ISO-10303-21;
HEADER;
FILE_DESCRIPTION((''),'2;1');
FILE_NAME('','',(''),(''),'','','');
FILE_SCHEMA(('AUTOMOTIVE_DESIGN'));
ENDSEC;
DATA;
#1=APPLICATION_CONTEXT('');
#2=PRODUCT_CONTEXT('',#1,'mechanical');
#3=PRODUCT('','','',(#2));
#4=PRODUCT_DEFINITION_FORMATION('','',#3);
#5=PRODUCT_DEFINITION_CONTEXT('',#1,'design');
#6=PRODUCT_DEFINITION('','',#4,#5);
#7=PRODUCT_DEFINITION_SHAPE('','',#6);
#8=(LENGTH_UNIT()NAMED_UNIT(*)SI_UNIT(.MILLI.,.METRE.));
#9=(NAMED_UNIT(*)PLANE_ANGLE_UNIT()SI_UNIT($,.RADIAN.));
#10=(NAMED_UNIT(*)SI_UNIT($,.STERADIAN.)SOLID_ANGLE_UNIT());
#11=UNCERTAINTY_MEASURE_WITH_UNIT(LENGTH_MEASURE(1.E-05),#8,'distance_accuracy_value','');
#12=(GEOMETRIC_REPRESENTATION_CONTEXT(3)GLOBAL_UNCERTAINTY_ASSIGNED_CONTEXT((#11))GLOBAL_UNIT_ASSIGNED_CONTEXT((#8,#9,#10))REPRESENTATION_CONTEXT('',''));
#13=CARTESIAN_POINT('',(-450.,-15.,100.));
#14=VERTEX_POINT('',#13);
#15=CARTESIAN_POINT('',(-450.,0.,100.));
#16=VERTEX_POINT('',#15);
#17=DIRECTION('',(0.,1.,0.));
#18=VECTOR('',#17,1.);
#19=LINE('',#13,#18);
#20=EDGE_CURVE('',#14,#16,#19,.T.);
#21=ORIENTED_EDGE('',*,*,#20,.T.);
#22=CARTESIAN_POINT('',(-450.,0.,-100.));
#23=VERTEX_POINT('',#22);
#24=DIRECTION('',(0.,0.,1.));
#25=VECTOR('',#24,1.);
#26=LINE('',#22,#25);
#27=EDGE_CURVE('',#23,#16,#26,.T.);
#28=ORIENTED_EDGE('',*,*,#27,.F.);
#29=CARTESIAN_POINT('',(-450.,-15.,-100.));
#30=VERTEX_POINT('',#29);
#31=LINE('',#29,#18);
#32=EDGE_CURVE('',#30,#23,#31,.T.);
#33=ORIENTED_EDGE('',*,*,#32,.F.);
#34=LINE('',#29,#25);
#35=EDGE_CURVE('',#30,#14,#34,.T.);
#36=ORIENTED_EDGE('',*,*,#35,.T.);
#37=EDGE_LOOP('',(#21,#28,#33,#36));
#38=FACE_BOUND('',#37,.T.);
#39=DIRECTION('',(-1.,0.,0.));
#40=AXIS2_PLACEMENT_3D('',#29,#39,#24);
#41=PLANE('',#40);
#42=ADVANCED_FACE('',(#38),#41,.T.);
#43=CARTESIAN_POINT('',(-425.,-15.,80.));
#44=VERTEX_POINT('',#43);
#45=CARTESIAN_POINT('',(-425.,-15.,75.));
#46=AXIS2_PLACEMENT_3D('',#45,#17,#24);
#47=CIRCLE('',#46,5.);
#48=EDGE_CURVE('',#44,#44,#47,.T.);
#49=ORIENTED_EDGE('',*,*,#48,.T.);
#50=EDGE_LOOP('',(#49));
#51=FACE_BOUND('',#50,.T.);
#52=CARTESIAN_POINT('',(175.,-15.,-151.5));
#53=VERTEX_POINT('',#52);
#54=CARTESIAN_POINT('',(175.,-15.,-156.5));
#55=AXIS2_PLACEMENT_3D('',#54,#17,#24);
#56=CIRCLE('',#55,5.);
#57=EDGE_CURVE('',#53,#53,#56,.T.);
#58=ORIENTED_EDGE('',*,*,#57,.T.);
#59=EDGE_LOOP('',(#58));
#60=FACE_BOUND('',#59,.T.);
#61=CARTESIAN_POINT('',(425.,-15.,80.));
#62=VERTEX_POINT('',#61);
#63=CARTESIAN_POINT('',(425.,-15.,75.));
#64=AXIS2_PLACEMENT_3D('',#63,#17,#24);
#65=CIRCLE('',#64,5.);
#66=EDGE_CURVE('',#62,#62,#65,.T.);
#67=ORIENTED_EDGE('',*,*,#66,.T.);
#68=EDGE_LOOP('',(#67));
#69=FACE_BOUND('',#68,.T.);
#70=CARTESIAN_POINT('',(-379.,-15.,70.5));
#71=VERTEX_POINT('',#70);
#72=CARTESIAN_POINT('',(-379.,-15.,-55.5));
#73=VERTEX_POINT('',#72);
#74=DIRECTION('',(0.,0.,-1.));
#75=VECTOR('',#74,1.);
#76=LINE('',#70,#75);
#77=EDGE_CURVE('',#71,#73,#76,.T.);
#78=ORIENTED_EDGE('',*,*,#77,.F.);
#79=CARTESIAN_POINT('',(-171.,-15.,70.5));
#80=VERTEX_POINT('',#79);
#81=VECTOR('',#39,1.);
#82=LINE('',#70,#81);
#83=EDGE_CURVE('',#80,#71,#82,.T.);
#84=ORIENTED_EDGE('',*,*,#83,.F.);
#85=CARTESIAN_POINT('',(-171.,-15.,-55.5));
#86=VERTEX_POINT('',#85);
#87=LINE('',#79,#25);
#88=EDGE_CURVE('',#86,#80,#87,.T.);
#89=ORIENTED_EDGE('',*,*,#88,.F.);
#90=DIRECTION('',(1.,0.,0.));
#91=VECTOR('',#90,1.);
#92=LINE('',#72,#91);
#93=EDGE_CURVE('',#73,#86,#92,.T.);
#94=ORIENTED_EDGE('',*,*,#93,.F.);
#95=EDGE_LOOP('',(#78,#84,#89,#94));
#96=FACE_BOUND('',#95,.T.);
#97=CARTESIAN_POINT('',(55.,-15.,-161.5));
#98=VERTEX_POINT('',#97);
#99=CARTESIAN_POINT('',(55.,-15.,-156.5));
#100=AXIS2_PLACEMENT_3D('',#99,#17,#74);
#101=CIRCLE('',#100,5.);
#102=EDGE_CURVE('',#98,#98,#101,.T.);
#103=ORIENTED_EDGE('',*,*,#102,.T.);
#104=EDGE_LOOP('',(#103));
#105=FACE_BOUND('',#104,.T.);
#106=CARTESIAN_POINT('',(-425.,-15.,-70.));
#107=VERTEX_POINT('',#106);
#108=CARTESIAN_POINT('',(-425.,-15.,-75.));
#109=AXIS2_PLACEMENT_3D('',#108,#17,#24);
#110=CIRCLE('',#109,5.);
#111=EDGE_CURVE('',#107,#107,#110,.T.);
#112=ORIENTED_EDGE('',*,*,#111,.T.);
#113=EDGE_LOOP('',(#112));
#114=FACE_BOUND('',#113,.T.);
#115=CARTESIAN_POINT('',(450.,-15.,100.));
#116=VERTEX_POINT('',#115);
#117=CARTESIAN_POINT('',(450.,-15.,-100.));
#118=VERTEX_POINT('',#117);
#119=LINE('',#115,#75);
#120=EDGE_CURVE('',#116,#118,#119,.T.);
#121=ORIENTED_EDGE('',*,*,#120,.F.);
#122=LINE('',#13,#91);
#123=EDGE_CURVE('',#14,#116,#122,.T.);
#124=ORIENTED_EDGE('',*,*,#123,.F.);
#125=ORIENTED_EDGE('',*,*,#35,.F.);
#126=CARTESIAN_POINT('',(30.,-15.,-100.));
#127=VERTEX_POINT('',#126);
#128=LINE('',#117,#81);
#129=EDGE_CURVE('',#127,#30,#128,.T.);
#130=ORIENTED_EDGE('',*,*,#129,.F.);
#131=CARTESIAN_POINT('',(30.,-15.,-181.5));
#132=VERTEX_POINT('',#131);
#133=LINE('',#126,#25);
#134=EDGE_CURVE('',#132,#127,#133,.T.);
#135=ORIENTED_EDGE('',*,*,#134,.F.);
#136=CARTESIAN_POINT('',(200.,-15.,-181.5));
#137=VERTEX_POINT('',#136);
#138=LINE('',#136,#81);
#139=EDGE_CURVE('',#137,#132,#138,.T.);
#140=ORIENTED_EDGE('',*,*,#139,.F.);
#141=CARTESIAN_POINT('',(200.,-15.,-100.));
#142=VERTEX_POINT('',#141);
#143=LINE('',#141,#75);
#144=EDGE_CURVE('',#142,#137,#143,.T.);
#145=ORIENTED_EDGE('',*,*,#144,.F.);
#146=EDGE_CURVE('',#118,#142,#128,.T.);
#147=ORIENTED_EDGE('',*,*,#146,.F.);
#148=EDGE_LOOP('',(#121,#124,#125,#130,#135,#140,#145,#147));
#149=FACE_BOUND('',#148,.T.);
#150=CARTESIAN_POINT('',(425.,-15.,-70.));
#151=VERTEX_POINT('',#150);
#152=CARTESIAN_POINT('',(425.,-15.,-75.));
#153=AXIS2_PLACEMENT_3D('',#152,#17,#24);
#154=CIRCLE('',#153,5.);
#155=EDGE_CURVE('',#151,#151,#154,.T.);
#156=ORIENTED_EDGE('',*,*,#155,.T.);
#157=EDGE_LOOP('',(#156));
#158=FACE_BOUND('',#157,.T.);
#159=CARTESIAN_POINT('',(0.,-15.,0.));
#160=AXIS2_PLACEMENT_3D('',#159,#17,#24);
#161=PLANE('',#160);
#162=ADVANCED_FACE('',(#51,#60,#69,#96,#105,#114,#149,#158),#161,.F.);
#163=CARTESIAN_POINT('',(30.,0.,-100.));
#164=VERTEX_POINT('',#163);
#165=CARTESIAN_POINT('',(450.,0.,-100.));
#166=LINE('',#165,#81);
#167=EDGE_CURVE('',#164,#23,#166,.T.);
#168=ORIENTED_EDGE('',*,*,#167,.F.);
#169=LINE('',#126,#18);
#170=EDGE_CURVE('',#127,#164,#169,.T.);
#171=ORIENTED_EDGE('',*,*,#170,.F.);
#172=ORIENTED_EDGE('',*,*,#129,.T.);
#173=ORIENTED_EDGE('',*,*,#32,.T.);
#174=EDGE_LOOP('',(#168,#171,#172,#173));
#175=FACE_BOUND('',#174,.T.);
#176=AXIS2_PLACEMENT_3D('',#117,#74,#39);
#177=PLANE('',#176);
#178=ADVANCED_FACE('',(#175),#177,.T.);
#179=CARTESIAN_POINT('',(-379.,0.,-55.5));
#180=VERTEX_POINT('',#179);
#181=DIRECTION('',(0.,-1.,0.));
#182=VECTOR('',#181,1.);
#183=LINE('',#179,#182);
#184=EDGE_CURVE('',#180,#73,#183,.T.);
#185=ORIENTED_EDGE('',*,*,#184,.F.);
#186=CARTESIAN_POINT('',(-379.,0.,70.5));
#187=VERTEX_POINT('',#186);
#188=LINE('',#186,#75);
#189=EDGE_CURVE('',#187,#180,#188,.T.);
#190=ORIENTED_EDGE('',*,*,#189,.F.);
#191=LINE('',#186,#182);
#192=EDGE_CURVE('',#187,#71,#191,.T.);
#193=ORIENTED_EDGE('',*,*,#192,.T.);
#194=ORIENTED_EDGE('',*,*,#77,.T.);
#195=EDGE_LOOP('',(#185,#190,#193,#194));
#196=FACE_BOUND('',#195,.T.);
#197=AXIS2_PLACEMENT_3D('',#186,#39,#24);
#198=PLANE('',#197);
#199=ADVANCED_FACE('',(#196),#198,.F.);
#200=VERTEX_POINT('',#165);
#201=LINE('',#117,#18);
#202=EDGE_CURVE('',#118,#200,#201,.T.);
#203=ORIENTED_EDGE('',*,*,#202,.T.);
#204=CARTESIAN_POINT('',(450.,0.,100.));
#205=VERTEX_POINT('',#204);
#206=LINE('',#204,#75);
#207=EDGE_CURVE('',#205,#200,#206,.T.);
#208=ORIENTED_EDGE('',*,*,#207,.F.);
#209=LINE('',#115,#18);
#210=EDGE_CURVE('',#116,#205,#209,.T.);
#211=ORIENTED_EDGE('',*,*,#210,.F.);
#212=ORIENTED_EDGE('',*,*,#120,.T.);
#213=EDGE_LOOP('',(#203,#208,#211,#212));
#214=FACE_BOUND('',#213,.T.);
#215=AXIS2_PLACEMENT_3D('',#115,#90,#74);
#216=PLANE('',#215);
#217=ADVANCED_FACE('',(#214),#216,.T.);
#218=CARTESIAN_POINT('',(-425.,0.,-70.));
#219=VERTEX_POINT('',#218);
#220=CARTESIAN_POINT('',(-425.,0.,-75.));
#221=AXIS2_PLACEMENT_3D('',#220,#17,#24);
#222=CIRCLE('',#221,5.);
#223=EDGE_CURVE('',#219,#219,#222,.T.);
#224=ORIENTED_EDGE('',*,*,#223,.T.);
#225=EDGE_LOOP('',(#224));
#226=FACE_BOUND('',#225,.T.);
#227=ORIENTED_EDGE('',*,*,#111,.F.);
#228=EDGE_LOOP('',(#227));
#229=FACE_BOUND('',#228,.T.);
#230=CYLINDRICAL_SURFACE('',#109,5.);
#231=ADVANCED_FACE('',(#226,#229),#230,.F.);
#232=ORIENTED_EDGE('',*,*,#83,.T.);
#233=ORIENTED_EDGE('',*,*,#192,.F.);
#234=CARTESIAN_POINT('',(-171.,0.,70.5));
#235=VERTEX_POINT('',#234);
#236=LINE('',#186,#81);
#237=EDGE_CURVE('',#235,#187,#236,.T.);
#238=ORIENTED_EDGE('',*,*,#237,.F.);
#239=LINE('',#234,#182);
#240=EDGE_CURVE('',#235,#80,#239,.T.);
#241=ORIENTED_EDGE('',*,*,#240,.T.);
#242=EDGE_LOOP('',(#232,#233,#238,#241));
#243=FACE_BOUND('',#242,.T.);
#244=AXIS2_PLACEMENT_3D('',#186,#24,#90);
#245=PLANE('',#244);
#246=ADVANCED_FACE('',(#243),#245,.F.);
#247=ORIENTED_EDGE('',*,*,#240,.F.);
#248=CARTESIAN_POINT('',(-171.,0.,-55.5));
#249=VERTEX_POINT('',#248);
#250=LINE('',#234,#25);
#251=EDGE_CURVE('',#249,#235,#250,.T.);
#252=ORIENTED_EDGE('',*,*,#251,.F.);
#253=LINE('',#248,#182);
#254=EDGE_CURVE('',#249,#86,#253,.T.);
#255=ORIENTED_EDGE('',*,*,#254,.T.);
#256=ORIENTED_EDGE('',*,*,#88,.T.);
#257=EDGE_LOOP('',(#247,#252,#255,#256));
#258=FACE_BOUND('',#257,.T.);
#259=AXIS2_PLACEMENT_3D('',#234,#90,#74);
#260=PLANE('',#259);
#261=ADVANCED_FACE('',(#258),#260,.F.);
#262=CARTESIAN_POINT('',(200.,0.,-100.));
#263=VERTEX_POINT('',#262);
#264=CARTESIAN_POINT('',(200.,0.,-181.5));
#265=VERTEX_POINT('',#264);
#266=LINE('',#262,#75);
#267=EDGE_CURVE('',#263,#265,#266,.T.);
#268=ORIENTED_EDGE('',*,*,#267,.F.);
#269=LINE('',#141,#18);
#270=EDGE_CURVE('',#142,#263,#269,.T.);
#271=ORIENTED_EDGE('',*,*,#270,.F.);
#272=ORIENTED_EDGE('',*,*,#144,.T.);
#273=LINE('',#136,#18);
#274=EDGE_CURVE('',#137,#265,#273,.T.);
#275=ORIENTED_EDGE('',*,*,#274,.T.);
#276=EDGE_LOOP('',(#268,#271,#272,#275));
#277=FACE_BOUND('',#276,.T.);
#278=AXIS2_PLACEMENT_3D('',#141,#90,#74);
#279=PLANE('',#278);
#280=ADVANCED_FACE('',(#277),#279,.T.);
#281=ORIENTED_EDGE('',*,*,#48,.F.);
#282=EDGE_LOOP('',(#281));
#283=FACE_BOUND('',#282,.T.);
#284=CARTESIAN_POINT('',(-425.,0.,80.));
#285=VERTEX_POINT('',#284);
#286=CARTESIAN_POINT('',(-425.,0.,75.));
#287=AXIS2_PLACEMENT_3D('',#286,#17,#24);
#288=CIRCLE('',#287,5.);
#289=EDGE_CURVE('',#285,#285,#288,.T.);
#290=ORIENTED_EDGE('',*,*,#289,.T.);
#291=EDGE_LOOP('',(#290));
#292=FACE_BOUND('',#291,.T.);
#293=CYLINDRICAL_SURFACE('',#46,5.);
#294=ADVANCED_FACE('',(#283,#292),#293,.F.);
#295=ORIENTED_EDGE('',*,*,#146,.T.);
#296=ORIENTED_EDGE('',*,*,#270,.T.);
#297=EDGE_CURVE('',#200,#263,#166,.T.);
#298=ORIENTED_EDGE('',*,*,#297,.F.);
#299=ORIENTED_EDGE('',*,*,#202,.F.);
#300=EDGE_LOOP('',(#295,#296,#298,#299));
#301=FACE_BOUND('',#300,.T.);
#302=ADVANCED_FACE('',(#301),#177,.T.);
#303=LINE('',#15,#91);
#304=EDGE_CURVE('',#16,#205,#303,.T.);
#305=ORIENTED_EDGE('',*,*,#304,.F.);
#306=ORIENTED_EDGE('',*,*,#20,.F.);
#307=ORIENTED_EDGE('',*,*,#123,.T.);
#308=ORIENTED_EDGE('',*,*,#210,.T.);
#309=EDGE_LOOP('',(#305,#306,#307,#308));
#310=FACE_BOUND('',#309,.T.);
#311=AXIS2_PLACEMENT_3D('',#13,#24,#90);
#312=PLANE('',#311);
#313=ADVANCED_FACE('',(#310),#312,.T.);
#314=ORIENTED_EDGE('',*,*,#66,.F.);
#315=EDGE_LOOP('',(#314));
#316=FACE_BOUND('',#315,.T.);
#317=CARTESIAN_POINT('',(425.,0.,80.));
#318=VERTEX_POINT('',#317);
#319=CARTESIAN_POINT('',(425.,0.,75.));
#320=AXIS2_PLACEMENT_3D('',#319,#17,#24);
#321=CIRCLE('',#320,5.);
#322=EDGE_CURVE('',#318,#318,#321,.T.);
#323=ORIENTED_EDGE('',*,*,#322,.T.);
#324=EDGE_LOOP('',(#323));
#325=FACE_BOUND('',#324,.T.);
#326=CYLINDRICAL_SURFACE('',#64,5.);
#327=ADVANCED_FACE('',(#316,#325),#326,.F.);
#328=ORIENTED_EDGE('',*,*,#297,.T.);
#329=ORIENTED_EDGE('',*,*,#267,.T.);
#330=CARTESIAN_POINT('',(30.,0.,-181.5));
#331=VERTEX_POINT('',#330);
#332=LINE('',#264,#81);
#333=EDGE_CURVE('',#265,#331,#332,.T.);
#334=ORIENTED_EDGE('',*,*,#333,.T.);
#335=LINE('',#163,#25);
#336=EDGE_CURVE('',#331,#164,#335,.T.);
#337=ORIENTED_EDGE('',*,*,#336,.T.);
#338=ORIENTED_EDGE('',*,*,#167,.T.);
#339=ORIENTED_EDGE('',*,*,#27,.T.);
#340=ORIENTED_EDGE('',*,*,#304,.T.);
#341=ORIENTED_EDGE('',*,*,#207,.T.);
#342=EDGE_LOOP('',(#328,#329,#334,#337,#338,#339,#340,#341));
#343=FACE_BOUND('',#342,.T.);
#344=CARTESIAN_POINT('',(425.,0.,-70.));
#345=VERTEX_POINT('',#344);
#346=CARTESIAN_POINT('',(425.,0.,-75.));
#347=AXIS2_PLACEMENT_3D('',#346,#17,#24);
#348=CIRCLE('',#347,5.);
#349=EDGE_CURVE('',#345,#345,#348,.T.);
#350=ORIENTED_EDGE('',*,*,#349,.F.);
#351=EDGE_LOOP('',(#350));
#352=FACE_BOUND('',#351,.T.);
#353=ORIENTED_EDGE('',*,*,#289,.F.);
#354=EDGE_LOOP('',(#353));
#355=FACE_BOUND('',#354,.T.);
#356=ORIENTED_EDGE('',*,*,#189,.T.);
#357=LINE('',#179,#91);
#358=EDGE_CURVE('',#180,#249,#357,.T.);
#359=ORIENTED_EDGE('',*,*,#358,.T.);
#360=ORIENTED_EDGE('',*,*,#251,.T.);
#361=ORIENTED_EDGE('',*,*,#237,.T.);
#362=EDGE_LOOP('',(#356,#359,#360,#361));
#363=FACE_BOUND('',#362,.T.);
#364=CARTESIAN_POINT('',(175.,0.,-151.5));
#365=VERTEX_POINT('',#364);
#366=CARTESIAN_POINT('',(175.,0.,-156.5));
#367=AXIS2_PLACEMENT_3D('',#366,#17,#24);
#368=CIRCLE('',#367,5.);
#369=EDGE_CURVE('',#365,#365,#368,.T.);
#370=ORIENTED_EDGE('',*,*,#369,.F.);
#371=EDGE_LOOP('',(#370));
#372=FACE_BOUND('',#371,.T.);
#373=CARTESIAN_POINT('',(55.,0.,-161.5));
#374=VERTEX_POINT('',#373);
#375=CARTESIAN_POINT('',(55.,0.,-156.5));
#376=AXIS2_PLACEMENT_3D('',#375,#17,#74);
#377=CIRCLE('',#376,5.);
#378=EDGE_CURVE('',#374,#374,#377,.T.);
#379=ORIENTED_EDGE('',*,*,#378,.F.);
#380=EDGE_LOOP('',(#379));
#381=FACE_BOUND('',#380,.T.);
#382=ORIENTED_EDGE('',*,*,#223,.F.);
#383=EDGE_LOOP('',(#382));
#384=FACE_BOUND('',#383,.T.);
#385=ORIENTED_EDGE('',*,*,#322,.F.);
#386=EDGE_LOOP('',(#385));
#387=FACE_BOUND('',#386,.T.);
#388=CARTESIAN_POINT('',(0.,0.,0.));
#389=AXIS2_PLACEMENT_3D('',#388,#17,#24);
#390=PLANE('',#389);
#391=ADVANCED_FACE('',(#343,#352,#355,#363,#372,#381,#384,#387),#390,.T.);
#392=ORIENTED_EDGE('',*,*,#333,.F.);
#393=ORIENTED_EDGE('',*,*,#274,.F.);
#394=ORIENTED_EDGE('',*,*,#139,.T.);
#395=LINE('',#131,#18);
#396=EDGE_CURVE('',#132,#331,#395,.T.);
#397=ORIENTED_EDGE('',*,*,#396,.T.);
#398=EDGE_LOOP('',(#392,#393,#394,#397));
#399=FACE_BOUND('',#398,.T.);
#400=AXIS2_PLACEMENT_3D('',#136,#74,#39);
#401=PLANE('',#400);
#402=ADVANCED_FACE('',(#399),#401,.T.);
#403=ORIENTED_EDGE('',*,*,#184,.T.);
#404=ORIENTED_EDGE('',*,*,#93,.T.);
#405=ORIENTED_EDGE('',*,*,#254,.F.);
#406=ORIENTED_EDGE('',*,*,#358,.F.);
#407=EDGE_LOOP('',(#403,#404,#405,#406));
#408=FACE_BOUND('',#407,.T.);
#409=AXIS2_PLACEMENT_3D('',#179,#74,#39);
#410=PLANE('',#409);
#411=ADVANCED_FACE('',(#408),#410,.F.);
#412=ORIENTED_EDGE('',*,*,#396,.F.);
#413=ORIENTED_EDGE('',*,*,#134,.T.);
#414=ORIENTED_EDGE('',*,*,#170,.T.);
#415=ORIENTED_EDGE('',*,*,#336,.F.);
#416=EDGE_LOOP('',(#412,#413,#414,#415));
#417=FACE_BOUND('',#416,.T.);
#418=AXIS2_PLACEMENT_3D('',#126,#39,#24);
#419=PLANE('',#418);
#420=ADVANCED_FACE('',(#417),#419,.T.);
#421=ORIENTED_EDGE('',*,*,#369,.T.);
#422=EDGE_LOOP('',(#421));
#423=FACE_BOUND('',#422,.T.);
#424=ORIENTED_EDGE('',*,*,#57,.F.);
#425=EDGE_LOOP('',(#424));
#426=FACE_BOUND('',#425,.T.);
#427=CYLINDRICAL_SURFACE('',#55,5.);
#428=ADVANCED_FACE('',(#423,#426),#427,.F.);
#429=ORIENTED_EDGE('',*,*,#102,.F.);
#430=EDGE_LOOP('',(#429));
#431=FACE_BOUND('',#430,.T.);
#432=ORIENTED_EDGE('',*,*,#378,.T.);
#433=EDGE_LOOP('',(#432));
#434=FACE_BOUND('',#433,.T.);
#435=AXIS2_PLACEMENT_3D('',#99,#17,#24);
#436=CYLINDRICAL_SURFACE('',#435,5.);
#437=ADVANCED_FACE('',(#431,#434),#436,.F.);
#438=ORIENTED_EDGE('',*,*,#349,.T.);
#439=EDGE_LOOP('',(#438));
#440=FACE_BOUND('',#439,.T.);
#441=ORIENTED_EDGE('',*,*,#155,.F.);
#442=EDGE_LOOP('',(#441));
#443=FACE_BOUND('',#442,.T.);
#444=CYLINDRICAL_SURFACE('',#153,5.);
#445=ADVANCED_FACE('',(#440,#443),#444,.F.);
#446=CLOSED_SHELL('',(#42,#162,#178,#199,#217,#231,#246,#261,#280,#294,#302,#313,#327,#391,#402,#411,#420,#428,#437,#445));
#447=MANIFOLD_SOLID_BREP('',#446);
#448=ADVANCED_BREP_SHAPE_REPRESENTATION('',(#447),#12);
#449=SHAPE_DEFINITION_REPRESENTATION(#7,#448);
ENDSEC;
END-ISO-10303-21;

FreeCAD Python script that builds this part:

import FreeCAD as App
import Part
import Sketcher
from FreeCAD import Vector
Q = App.Units.Quantity

doc = App.newDocument("Part")
body = doc.addObject("PartDesign::Body", "Body")

# Sketch on XZ plane
sketch1 = body.newObject("Sketcher::SketchObject", "Sketch")
sketch1.AttachmentSupport = (doc.getObject("XZ_Plane"), [""])
sketch1.MapMode = "FlatFace"
sketch1.addGeometry([
    Part.LineSegment(Vector(-450, -100, 0), Vector(-450, 100, 0)),  # 0
    Part.LineSegment(Vector(-450, 100, 0), Vector(450, 100, 0)),  # 1
    Part.LineSegment(Vector(450, 100, 0), Vector(450, -100, 0)),  # 2
    Part.LineSegment(Vector(450, -100, 0), Vector(-450, -100, 0)),  # 3
    Part.Circle(Vector(-425, 75, 0), Vector(0, 0, 1), 5),  # 4
    Part.Circle(Vector(425, 75, 0), Vector(0, 0, 1), 5),  # 5
    Part.Circle(Vector(-425, -75, 0), Vector(0, 0, 1), 5),  # 6
    Part.Circle(Vector(425, -75, 0), Vector(0, 0, 1), 5),  # 7
], False)
sketch1.addConstraint([
    Sketcher.Constraint("Coincident", 0, 2, 1, 1),
    Sketcher.Constraint("Coincident", 1, 2, 2, 1),
    Sketcher.Constraint("Coincident", 2, 2, 3, 1),
    Sketcher.Constraint("Coincident", 3, 2, 0, 1),
    Sketcher.Constraint("Vertical", 0),
    Sketcher.Constraint("Horizontal", 1),
    Sketcher.Constraint("Vertical", 2),
    Sketcher.Constraint("Horizontal", 3),
    Sketcher.Constraint("Equal", 4, 5),
    Sketcher.Constraint("Equal", 5, 6),
    Sketcher.Constraint("Equal", 6, 7),
    Sketcher.Constraint("Symmetric", 5, 3, 6, 3, -1, 1),
    Sketcher.Constraint("Symmetric", 4, 3, 7, 3, -1, 1),
    Sketcher.Constraint("Symmetric", 0, 2, 2, 2, -1, 1),
    Sketcher.Constraint("Symmetric", 4, 3, 5, 3, -2),
    Sketcher.Constraint("Diameter", 4, Q("10 mm")),
    Sketcher.Constraint("DistanceX", 1, 1, 1, 2, Q("900 mm")),
    Sketcher.Constraint("DistanceY", 0, 1, 0, 2, Q("200 mm")),
    Sketcher.Constraint("DistanceX", 4, 3, -1, 1, Q("425 mm")),
    Sketcher.Constraint("DistanceY", -1, 1, 4, 3, Q("75 mm")),
])
pad1 = body.newObject("PartDesign::Pad", "Pad")
pad1.Profile = sketch1
pad1.Length = 15

# Sketch on XZ plane
sketch2 = body.newObject("Sketcher::SketchObject", "Sketch001")
sketch2.AttachmentSupport = (doc.getObject("XZ_Plane"), [""])
sketch2.MapMode = "FlatFace"
sketch2.AttachmentOffset = App.Placement(Vector(0, 0, 15), App.Rotation())
sketch2.addGeometry([
    Part.LineSegment(Vector(-379, 70.5, 0), Vector(-379, -55.5, 0)),
    Part.LineSegment(Vector(-379, -55.5, 0), Vector(-171, -55.5, 0)),
    Part.LineSegment(Vector(-171, -55.5, 0), Vector(-171, 70.5, 0)),
    Part.LineSegment(Vector(-171, 70.5, 0), Vector(-379, 70.5, 0)),
], False)
sketch2.addConstraint([
    Sketcher.Constraint("Coincident", 0, 2, 1, 1),
    Sketcher.Constraint("Coincident", 1, 2, 2, 1),
    Sketcher.Constraint("Coincident", 2, 2, 3, 1),
    Sketcher.Constraint("Coincident", 3, 2, 0, 1),
    Sketcher.Constraint("Vertical", 0),
    Sketcher.Constraint("Horizontal", 1),
    Sketcher.Constraint("Vertical", 2),
    Sketcher.Constraint("Horizontal", 3),
    Sketcher.Constraint("DistanceX", 1, 1, 1, 2, Q("208 mm")),
    Sketcher.Constraint("DistanceY", 0, 2, 0, 1, Q("126 mm")),
    Sketcher.Constraint("DistanceX", 0, 2, -1, 1, Q("379 mm")),
    Sketcher.Constraint("DistanceY", 0, 2, -1, 1, Q("55.5 mm")),
])
pocket1 = body.newObject("PartDesign::Pocket", "Pocket")
pocket1.Profile = sketch2
pocket1.Type = "ThroughAll"

# Sketch on XZ plane
sketch3 = body.newObject("Sketcher::SketchObject", "Sketch002")
sketch3.AttachmentSupport = (doc.getObject("XZ_Plane"), [""])
sketch3.MapMode = "FlatFace"
sketch3.addGeometry([
    Part.LineSegment(Vector(30, -181.5, 0), Vector(30, -100, 0)),  # 0
    Part.LineSegment(Vector(30, -100, 0), Vector(200, -100, 0)),  # 1
    Part.LineSegment(Vector(200, -100, 0), Vector(200, -181.5, 0)),  # 2
    Part.LineSegment(Vector(200, -181.5, 0), Vector(30, -181.5, 0)),  # 3
    Part.Circle(Vector(55, -156.5, 0), Vector(0, 0, 1), 5),  # 4
    Part.Circle(Vector(175, -156.5, 0), Vector(0, 0, 1), 5),  # 5
], False)
sketch3.addConstraint([
    Sketcher.Constraint("Coincident", 0, 2, 1, 1),
    Sketcher.Constraint("Coincident", 1, 2, 2, 1),
    Sketcher.Constraint("Coincident", 2, 2, 3, 1),
    Sketcher.Constraint("Coincident", 3, 2, 0, 1),
    Sketcher.Constraint("Vertical", 0),
    Sketcher.Constraint("Horizontal", 1),
    Sketcher.Constraint("Vertical", 2),
    Sketcher.Constraint("Horizontal", 3),
    Sketcher.Constraint("Equal", 4, 5),
    Sketcher.Constraint("Horizontal", 4, 3, 5, 3),
    Sketcher.Constraint("Diameter", 4, Q("10 mm")),
    Sketcher.Constraint("DistanceX", 1, 1, 1, 2, Q("170 mm")),
    Sketcher.Constraint("DistanceY", 0, 1, 0, 2, Q("81.5 mm")),
    Sketcher.Constraint("DistanceX", -1, 1, 4, 3, Q("55 mm")),
    Sketcher.Constraint("DistanceX", -1, 1, 5, 3, Q("175 mm")),
    Sketcher.Constraint("DistanceX", -1, 1, 0, 2, Q("30 mm")),
    Sketcher.Constraint("DistanceY", 0, 2, -1, 1, Q("100 mm")),
    Sketcher.Constraint("DistanceY", 2, 2, 5, 3, Q("25 mm")),
])
pad2 = body.newObject("PartDesign::Pad", "Pad001")
pad2.Profile = sketch3
pad2.Length = 15

doc.recompute()
